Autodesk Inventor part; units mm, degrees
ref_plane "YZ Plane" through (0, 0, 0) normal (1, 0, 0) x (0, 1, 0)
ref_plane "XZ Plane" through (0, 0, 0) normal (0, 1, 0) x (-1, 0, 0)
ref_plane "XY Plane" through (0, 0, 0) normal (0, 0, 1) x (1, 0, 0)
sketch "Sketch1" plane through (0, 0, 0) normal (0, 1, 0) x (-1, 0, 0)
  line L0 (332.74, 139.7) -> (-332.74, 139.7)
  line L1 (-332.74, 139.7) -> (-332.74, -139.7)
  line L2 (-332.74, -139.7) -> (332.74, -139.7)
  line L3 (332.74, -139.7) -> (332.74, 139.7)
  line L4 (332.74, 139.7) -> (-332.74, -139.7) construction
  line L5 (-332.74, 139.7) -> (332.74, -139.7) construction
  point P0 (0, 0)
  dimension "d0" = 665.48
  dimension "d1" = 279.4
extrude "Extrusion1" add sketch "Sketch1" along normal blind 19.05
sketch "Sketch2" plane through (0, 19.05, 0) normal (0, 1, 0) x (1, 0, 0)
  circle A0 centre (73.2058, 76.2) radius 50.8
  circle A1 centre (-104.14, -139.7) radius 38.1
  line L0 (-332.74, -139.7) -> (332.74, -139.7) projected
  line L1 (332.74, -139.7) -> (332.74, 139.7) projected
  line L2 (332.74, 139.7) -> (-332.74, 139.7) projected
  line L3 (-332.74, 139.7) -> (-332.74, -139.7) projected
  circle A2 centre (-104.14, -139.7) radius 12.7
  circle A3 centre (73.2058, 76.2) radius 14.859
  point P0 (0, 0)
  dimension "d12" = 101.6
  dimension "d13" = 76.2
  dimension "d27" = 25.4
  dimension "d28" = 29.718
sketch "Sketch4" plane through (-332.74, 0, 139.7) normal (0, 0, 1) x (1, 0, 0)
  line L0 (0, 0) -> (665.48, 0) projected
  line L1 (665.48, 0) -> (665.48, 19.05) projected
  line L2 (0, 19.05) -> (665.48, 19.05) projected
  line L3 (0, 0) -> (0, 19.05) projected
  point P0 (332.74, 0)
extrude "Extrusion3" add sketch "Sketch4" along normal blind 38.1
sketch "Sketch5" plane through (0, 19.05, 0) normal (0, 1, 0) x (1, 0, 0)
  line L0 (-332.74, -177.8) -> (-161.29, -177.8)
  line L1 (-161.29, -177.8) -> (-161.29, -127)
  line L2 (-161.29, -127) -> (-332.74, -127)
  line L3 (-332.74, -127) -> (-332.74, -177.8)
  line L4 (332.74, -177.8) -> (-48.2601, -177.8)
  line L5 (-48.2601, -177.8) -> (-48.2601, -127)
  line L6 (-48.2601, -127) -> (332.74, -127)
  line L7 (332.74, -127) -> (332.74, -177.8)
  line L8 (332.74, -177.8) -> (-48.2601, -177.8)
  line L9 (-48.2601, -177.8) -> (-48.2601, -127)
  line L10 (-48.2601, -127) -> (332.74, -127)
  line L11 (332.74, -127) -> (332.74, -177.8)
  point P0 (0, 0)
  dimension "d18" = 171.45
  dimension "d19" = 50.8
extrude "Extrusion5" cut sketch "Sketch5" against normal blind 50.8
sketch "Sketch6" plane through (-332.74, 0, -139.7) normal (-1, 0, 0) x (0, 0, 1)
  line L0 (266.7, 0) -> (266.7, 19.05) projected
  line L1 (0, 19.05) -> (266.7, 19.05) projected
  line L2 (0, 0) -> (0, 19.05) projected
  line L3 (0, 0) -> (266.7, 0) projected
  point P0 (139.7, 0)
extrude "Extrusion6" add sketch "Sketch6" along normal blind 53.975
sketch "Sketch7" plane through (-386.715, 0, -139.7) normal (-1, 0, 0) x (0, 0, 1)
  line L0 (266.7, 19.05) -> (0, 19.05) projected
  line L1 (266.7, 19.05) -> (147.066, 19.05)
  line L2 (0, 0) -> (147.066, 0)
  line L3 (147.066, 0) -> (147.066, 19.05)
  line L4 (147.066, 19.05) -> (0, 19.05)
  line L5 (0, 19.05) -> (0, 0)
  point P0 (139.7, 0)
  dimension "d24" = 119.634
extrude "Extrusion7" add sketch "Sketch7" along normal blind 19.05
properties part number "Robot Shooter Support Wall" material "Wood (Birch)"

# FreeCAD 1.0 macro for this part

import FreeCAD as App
import Part
import Sketcher

V = App.Vector
Q = App.Units.Quantity

doc = App.newDocument("Part")
body = doc.addObject("PartDesign::Body", "Body")

# Sketch on XZ plane
sketch1 = body.newObject("Sketcher::SketchObject", "Sketch")
sketch1.AttachmentSupport = (doc.getObject("XZ_Plane"), [""])
sketch1.MapMode = "FlatFace"
sketch1.addGeometry(Part.LineSegment(V(-332.74, -139.7, 0), V(-332.74, 139.7, 0)), False)
sketch1.addGeometry(Part.LineSegment(V(-332.74, 139.7, 0), V(332.74, 139.7, 0)), False)
sketch1.addGeometry(Part.LineSegment(V(332.74, 139.7, 0), V(332.74, -139.7, 0)), False)
sketch1.addGeometry(Part.LineSegment(V(332.74, -139.7, 0), V(-332.74, -139.7, 0)), False)
sketch1.addConstraint(Sketcher.Constraint("Coincident", 0, 2, 1, 1))
sketch1.addConstraint(Sketcher.Constraint("Coincident", 1, 2, 2, 1))
sketch1.addConstraint(Sketcher.Constraint("Coincident", 2, 2, 3, 1))
sketch1.addConstraint(Sketcher.Constraint("Coincident", 3, 2, 0, 1))
sketch1.addConstraint(Sketcher.Constraint("Vertical", 0))
sketch1.addConstraint(Sketcher.Constraint("Horizontal", 1))
sketch1.addConstraint(Sketcher.Constraint("Vertical", 2))
sketch1.addConstraint(Sketcher.Constraint("Horizontal", 3))
sketch1.addConstraint(Sketcher.Constraint("Symmetric", 0, 2, 2, 2, -1, 1))
sketch1.addConstraint(Sketcher.Constraint("DistanceY", 0, 1, 0, 2, Q("11 in")))
sketch1.addConstraint(Sketcher.Constraint("DistanceX", 1, 1, 1, 2, Q("26.2 in")))
pad1 = body.newObject("PartDesign::Pad", "Pad")
pad1.Profile = sketch1
pad1.Length = Q("0.75 in")
pad1.Reversed = True

# Sketch on XY plane
sketch2 = body.newObject("Sketcher::SketchObject", "Sketch001")
sketch2.AttachmentSupport = (doc.getObject("XY_Plane"), [""])
sketch2.MapMode = "FlatFace"
sketch2.AttachmentOffset = App.Placement(V(0, 0, 5.5 * 25.4), App.Rotation())
sketch2.addGeometry(Part.LineSegment(V(-332.74, 19.05, 0), V(-332.74, 0, 0)), False)
sketch2.addGeometry(Part.LineSegment(V(-332.74, 0, 0), V(332.74, 0, 0)), False)
sketch2.addGeometry(Part.LineSegment(V(332.74, 0, 0), V(332.74, 19.05, 0)), False)
sketch2.addGeometry(Part.LineSegment(V(332.74, 19.05, 0), V(-332.74, 19.05, 0)), False)
sketch2.addConstraint(Sketcher.Constraint("Coincident", 0, 2, 1, 1))
sketch2.addConstraint(Sketcher.Constraint("Coincident", 1, 2, 2, 1))
sketch2.addConstraint(Sketcher.Constraint("Coincident", 2, 2, 3, 1))
sketch2.addConstraint(Sketcher.Constraint("Coincident", 3, 2, 0, 1))
sketch2.addConstraint(Sketcher.Constraint("Vertical", 0))
sketch2.addConstraint(Sketcher.Constraint("Horizontal", 1))
sketch2.addConstraint(Sketcher.Constraint("Vertical", 2))
sketch2.addConstraint(Sketcher.Constraint("Horizontal", 3))
sketch2.addConstraint(Sketcher.Constraint("Symmetric", 0, 2, 1, 2, -1, 1))
sketch2.addConstraint(Sketcher.Constraint("DistanceX", 1, 1, 1, 2, Q("26.2 in")))
sketch2.addConstraint(Sketcher.Constraint("DistanceY", 0, 2, 0, 1, Q("0.75 in")))
pad2 = body.newObject("PartDesign::Pad", "Pad001")
pad2.Profile = sketch2
pad2.Length = Q("1.5 in")

# Sketch on XZ plane
sketch3 = body.newObject("Sketcher::SketchObject", "Sketch002")
sketch3.AttachmentSupport = (doc.getObject("XZ_Plane"), [""])
sketch3.MapMode = "FlatFace"
sketch3.AttachmentOffset = App.Placement(V(0, 0, -0.75 * 25.4), App.Rotation())
sketch3.addGeometry(Part.LineSegment(V(-332.74, 127, 0), V(-332.74, 177.8, 0)), False)
sketch3.addGeometry(Part.LineSegment(V(-332.74, 177.8, 0), V(-161.29, 177.8, 0)), False)
sketch3.addGeometry(Part.LineSegment(V(-161.29, 177.8, 0), V(-161.29, 127, 0)), False)
sketch3.addGeometry(Part.LineSegment(V(-161.29, 127, 0), V(-332.74, 127, 0)), False)
sketch3.addGeometry(Part.LineSegment(V(-48.2601, 177.8, 0), V(332.74, 177.8, 0)), False)
sketch3.addGeometry(Part.LineSegment(V(332.74, 177.8, 0), V(332.74, 127, 0)), False)
sketch3.addGeometry(Part.LineSegment(V(332.74, 127, 0), V(-48.2601, 127, 0)), False)
sketch3.addGeometry(Part.LineSegment(V(-48.2601, 127, 0), V(-48.2601, 177.8, 0)), False)
sketch3.addConstraint(Sketcher.Constraint("Coincident", 0, 2, 1, 1))
sketch3.addConstraint(Sketcher.Constraint("Coincident", 1, 2, 2, 1))
sketch3.addConstraint(Sketcher.Constraint("Coincident", 2, 2, 3, 1))
sketch3.addConstraint(Sketcher.Constraint("Coincident", 3, 2, 0, 1))
sketch3.addConstraint(Sketcher.Constraint("Coincident", 4, 2, 5, 1))
sketch3.addConstraint(Sketcher.Constraint("Coincident", 5, 2, 6, 1))
sketch3.addConstraint(Sketcher.Constraint("Coincident", 6, 2, 7, 1))
sketch3.addConstraint(Sketcher.Constraint("Coincident", 7, 2, 4, 1))
sketch3.addConstraint(Sketcher.Constraint("Vertical", 0))
sketch3.addConstraint(Sketcher.Constraint("Horizontal", 1))
sketch3.addConstraint(Sketcher.Constraint("Vertical", 2))
sketch3.addConstraint(Sketcher.Constraint("Horizontal", 3))
sketch3.addConstraint(Sketcher.Constraint("Horizontal", 4))
sketch3.addConstraint(Sketcher.Constraint("Vertical", 5))
sketch3.addConstraint(Sketcher.Constraint("Horizontal", 6))
sketch3.addConstraint(Sketcher.Constraint("Vertical", 7))
sketch3.addConstraint(Sketcher.Constraint("Symmetric", 0, 2, 4, 2, -2))
sketch3.addConstraint(Sketcher.Constraint("Horizontal", 3, 2, 5, 2))
sketch3.addConstraint(Sketcher.Constraint("DistanceY", 0, 1, 0, 2, Q("2 in")))
sketch3.addConstraint(Sketcher.Constraint("DistanceX", 1, 1, 1, 2, Q("6.75 in")))
sketch3.addConstraint(Sketcher.Constraint("DistanceX", 4, 1, 4, 2, Q("15 in")))
sketch3.addConstraint(Sketcher.Constraint("DistanceY", -1, 1, 0, 2, Q("7 in")))
sketch3.addConstraint(Sketcher.Constraint("DistanceX", 0, 2, -1, 1, Q("13.1 in")))
pocket1 = body.newObject("PartDesign::Pocket", "Pocket")
pocket1.Profile = sketch3
pocket1.Length = Q("2 in")
pocket1.Reversed = True

# Sketch on YZ plane
sketch4 = body.newObject("Sketcher::SketchObject", "Sketch003")
sketch4.AttachmentSupport = (doc.getObject("YZ_Plane"), [""])
sketch4.MapMode = "FlatFace"
sketch4.AttachmentOffset = App.Placement(V(0, 0, -13.1 * 25.4), App.Rotation())
sketch4.addGeometry(Part.LineSegment(V(0, -139.7, 0), V(0, 127, 0)), False)
sketch4.addGeometry(Part.LineSegment(V(0, 127, 0), V(19.05, 127, 0)), False)
sketch4.addGeometry(Part.LineSegment(V(19.05, 127, 0), V(19.05, -139.7, 0)), False)
sketch4.addGeometry(Part.LineSegment(V(19.05, -139.7, 0), V(0, -139.7, 0)), False)
sketch4.addConstraint(Sketcher.Constraint("Coincident", 0, 2, 1, 1))
sketch4.addConstraint(Sketcher.Constraint("Coincident", 1, 2, 2, 1))
sketch4.addConstraint(Sketcher.Constraint("Coincident", 2, 2, 3, 1))
sketch4.addConstraint(Sketcher.Constraint("Coincident", 3, 2, 0, 1))
sketch4.addConstraint(Sketcher.Constraint("Vertical", 0))
sketch4.addConstraint(Sketcher.Constraint("Horizontal", 1))
sketch4.addConstraint(Sketcher.Constraint("Vertical", 2))
sketch4.addConstraint(Sketcher.Constraint("Horizontal", 3))
sketch4.addConstraint(Sketcher.Constraint("PointOnObject", 0, 2, -2))
sketch4.addConstraint(Sketcher.Constraint("DistanceY", 0, 1, 0, 2, Q("10.5 in")))
sketch4.addConstraint(Sketcher.Constraint("DistanceY", -1, 1, 0, 2, Q("5 in")))
sketch4.addConstraint(Sketcher.Constraint("DistanceX", 1, 1, 1, 2, Q("0.75 in")))
pad3 = body.newObject("PartDesign::Pad", "Pad002")
pad3.Profile = sketch4
pad3.Length = Q("2.125 in")
pad3.Reversed = True

# Sketch on YZ plane
sketch5 = body.newObject("Sketcher::SketchObject", "Sketch004")
sketch5.AttachmentSupport = (doc.getObject("YZ_Plane"), [""])
sketch5.MapMode = "FlatFace"
sketch5.AttachmentOffset = App.Placement(V(0, 0, -15.225 * 25.4), App.Rotation())
sketch5.addGeometry(Part.LineSegment(V(0, 7.366, 0), V(19.05, 7.366, 0)), False)
sketch5.addGeometry(Part.LineSegment(V(19.05, 7.366, 0), V(19.05, -139.7, 0)), False)
sketch5.addGeometry(Part.LineSegment(V(19.05, -139.7, 0), V(0, -139.7, 0)), False)
sketch5.addGeometry(Part.LineSegment(V(0, -139.7, 0), V(0, 7.366, 0)), False)
sketch5.addConstraint(Sketcher.Constraint("Coincident", 0, 2, 1, 1))
sketch5.addConstraint(Sketcher.Constraint("Coincident", 1, 2, 2, 1))
sketch5.addConstraint(Sketcher.Constraint("Coincident", 2, 2, 3, 1))
sketch5.addConstraint(Sketcher.Constraint("Coincident", 3, 2, 0, 1))
sketch5.addConstraint(Sketcher.Constraint("Horizontal", 0))
sketch5.addConstraint(Sketcher.Constraint("Vertical", 1))
sketch5.addConstraint(Sketcher.Constraint("Horizontal", 2))
sketch5.addConstraint(Sketcher.Constraint("Vertical", 3))
sketch5.addConstraint(Sketcher.Constraint("PointOnObject", 2, 2, -2))
sketch5.addConstraint(Sketcher.Constraint("DistanceX", 0, 1, 0, 2, Q("0.75 in")))
sketch5.addConstraint(Sketcher.Constraint("DistanceY", 1, 2, 1, 1, Q("5.79 in")))
sketch5.addConstraint(Sketcher.Constraint("DistanceY", 1, 2, -1, 1, Q("5.5 in")))
pad4 = body.newObject("PartDesign::Pad", "Pad003")
pad4.Profile = sketch5
pad4.Length = Q("0.75 in")
pad4.Reversed = True

doc.recompute()
